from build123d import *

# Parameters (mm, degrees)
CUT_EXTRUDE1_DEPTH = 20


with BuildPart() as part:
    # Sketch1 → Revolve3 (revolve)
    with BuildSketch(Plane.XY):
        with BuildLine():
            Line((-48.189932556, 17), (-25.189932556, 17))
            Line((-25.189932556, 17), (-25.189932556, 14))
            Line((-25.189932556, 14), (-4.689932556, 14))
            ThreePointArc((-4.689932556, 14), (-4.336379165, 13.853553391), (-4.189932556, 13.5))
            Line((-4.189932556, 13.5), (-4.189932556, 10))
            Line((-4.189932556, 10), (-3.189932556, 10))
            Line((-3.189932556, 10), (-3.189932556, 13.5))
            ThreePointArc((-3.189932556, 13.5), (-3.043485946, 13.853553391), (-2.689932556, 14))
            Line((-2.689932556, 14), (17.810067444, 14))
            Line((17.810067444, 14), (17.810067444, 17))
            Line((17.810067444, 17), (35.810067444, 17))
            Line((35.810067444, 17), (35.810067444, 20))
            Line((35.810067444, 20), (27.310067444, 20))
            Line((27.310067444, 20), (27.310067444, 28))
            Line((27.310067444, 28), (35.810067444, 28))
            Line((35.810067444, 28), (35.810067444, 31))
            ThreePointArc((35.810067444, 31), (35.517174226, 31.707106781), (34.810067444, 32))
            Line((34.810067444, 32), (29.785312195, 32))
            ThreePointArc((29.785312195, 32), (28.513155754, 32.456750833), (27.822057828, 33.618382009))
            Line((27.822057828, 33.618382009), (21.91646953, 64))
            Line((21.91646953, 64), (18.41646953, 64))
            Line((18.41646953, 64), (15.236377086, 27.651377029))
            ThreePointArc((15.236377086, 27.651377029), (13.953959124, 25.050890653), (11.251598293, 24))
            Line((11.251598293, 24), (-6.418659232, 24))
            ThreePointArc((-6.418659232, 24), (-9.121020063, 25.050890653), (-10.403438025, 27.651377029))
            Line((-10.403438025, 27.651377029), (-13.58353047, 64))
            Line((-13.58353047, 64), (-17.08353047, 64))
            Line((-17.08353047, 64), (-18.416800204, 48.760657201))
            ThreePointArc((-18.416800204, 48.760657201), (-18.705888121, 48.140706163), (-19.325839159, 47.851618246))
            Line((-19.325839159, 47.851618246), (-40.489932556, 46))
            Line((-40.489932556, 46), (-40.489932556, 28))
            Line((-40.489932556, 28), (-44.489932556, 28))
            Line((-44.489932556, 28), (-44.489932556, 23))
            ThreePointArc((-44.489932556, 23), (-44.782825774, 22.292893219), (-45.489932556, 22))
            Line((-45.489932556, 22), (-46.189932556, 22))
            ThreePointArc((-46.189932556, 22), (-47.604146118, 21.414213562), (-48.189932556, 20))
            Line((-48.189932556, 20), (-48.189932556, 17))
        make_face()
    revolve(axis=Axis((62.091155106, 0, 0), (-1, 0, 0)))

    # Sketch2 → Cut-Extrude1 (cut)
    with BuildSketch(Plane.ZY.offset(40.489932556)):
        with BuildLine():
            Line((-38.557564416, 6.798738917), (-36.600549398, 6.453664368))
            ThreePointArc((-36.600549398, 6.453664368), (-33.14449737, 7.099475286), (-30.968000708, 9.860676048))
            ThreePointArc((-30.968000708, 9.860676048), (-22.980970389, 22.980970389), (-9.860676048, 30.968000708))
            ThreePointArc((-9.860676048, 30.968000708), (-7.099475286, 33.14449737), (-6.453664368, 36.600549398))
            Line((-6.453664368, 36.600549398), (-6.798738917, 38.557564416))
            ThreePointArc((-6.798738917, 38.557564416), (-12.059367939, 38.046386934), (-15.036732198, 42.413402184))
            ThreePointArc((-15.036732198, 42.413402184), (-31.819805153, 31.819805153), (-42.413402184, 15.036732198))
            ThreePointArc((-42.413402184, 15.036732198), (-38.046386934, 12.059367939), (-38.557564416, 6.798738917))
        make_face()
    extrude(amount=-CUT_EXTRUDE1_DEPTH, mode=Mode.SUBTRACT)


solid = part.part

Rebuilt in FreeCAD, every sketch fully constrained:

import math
import FreeCAD as App
import Part
import Sketcher

V = App.Vector
Q = App.Units.Quantity

doc = App.newDocument("Part")
body = doc.addObject("PartDesign::Body", "Body")

# Sketch on XY plane
sketch1 = body.newObject("Sketcher::SketchObject", "Sketch")
sketch1.AttachmentSupport = (doc.getObject("XY_Plane"), [""])
sketch1.MapMode = "FlatFace"
sketch1.addGeometry([
    Part.LineSegment(V(-48.19, 17, 0), V(-25.19, 17, 0)),  # 0
    Part.LineSegment(V(-25.19, 17, 0), V(-25.19, 14, 0)),  # 1
    Part.LineSegment(V(-25.19, 14, 0), V(-4.69, 14, 0)),  # 2
    Part.ArcOfCircle(Part.Circle(V(-4.69, 13.5, 0), V(0, 0, 1), 0.5), math.radians(0), math.radians(90)),  # 3
    Part.LineSegment(V(-4.19, 13.5, 0), V(-4.19, 10, 0)),  # 4
    Part.LineSegment(V(-4.19, 10, 0), V(-3.19, 10, 0)),  # 5
    Part.LineSegment(V(-3.19, 10, 0), V(-3.19, 13.5, 0)),  # 6
    Part.ArcOfCircle(Part.Circle(V(-2.69, 13.5, 0), V(0, 0, 1), 0.5), math.radians(90), math.radians(180)),  # 7
    Part.LineSegment(V(-2.69, 14, 0), V(17.81, 14, 0)),  # 8
    Part.LineSegment(V(17.81, 14, 0), V(17.81, 17, 0)),  # 9
    Part.LineSegment(V(17.81, 17, 0), V(35.81, 17, 0)),  # 10
    Part.LineSegment(V(35.81, 17, 0), V(35.81, 20, 0)),  # 11
    Part.LineSegment(V(35.81, 20, 0), V(27.31, 20, 0)),  # 12
    Part.LineSegment(V(27.31, 20, 0), V(27.31, 28, 0)),  # 13
    Part.LineSegment(V(27.31, 28, 0), V(35.81, 28, 0)),  # 14
    Part.LineSegment(V(35.81, 28, 0), V(35.81, 31, 0)),  # 15
    Part.ArcOfCircle(Part.Circle(V(34.81, 31, 0), V(0, 0, 1), 1), math.radians(0), math.radians(90)),  # 16
    Part.LineSegment(V(34.81, 32, 0), V(29.79, 32, 0)),  # 17
    Part.ArcOfCircle(Part.Circle(V(29.79, 34, 0), V(0, 0, 1), 2), math.radians(-169), math.radians(-90)),  # 18
    Part.LineSegment(V(27.82, 33.62, 0), V(21.92, 64, 0)),  # 19
    Part.LineSegment(V(21.92, 64, 0), V(18.42, 64, 0)),  # 20
    Part.LineSegment(V(18.42, 64, 0), V(15.24, 27.65, 0)),  # 21
    Part.ArcOfCircle(Part.Circle(V(11.25, 28, 0), V(0, 0, 1), 4), math.radians(-90), math.radians(-5)),  # 22
    Part.LineSegment(V(11.25, 24, 0), V(-6.42, 24, 0)),  # 23
    Part.ArcOfCircle(Part.Circle(V(-6.42, 28, 0), V(0, 0, 1), 4), math.radians(-175), math.radians(-90)),  # 24
    Part.LineSegment(V(-10.4, 27.65, 0), V(-13.58, 64, 0)),  # 25
    Part.LineSegment(V(-13.58, 64, 0), V(-17.08, 64, 0)),  # 26
    Part.LineSegment(V(-17.08, 64, 0), V(-18.42, 48.76, 0)),  # 27
    Part.ArcOfCircle(Part.Circle(V(-19.41, 48.85, 0), V(0, 0, 1), 1), math.radians(-85), math.radians(-5)),  # 28
    Part.LineSegment(V(-19.33, 47.85, 0), V(-40.49, 46, 0)),  # 29
    Part.LineSegment(V(-40.49, 46, 0), V(-40.49, 28, 0)),  # 30
    Part.LineSegment(V(-40.49, 28, 0), V(-44.49, 28, 0)),  # 31
    Part.LineSegment(V(-44.49, 28, 0), V(-44.49, 23, 0)),  # 32
    Part.ArcOfCircle(Part.Circle(V(-45.49, 23, 0), V(0, 0, 1), 1), math.radians(-90), math.radians(0)),  # 33
    Part.LineSegment(V(-45.49, 22, 0), V(-46.19, 22, 0)),  # 34
    Part.ArcOfCircle(Part.Circle(V(-46.19, 20, 0), V(0, 0, 1), 2), math.radians(90), math.radians(180)),  # 35
    Part.LineSegment(V(-48.19, 20, 0), V(-48.19, 17, 0)),  # 36
], False)
sketch1.addConstraint([
    Sketcher.Constraint("Coincident", 0, 2, 1, 1),
    Sketcher.Constraint("Coincident", 1, 2, 2, 1),
    Sketcher.Constraint("Tangent", 2, 2, 3, 2),
    Sketcher.Constraint("Tangent", 3, 1, 4, 1),
    Sketcher.Constraint("Coincident", 4, 2, 5, 1),
    Sketcher.Constraint("Coincident", 5, 2, 6, 1),
    Sketcher.Constraint("Tangent", 6, 2, 7, 2),
    Sketcher.Constraint("Tangent", 7, 1, 8, 1),
    Sketcher.Constraint("Coincident", 8, 2, 9, 1),
    Sketcher.Constraint("Coincident", 9, 2, 10, 1),
    Sketcher.Constraint("Coincident", 10, 2, 11, 1),
    Sketcher.Constraint("Coincident", 11, 2, 12, 1),
    Sketcher.Constraint("Coincident", 12, 2, 13, 1),
    Sketcher.Constraint("Coincident", 13, 2, 14, 1),
    Sketcher.Constraint("Coincident", 14, 2, 15, 1),
    Sketcher.Constraint("Tangent", 15, 2, 16, 1),
    Sketcher.Constraint("Tangent", 16, 2, 17, 1),
    Sketcher.Constraint("Tangent", 17, 2, 18, 2),
    Sketcher.Constraint("Tangent", 18, 1, 19, 1),
    Sketcher.Constraint("Coincident", 19, 2, 20, 1),
    Sketcher.Constraint("Coincident", 20, 2, 21, 1),
    Sketcher.Constraint("Tangent", 21, 2, 22, 2),
    Sketcher.Constraint("Tangent", 22, 1, 23, 1),
    Sketcher.Constraint("Tangent", 23, 2, 24, 2),
    Sketcher.Constraint("Tangent", 24, 1, 25, 1),
    Sketcher.Constraint("Coincident", 25, 2, 26, 1),
    Sketcher.Constraint("Coincident", 26, 2, 27, 1),
    Sketcher.Constraint("Tangent", 27, 2, 28, 2),
    Sketcher.Constraint("Tangent", 28, 1, 29, 1),
    Sketcher.Constraint("Coincident", 29, 2, 30, 1),
    Sketcher.Constraint("Coincident", 30, 2, 31, 1),
    Sketcher.Constraint("Coincident", 31, 2, 32, 1),
    Sketcher.Constraint("Tangent", 32, 2, 33, 2),
    Sketcher.Constraint("Tangent", 33, 1, 34, 1),
    Sketcher.Constraint("Tangent", 34, 2, 35, 1),
    Sketcher.Constraint("Tangent", 35, 2, 36, 1),
    Sketcher.Constraint("Coincident", 36, 2, 0, 1),
    Sketcher.Constraint("Horizontal", 0),
    Sketcher.Constraint("Vertical", 1),
    Sketcher.Constraint("Horizontal", 2),
    Sketcher.Constraint("Vertical", 4),
    Sketcher.Constraint("Horizontal", 5),
    Sketcher.Constraint("Vertical", 6),
    Sketcher.Constraint("Horizontal", 8),
    Sketcher.Constraint("Vertical", 9),
    Sketcher.Constraint("Horizontal", 10),
    Sketcher.Constraint("Vertical", 11),
    Sketcher.Constraint("Horizontal", 12),
    Sketcher.Constraint("Vertical", 13),
    Sketcher.Constraint("Horizontal", 14),
    Sketcher.Constraint("Vertical", 15),
    Sketcher.Constraint("Horizontal", 17),
    Sketcher.Constraint("Horizontal", 20),
    Sketcher.Constraint("Horizontal", 23),
    Sketcher.Constraint("Horizontal", 26),
    Sketcher.Constraint("Vertical", 30),
    Sketcher.Constraint("Horizontal", 31),
    Sketcher.Constraint("Vertical", 32),
    Sketcher.Constraint("Horizontal", 34),
    Sketcher.Constraint("Vertical", 36),
    Sketcher.Constraint("Equal", 3, 7),
    Sketcher.Constraint("Equal", 22, 24),
    Sketcher.Constraint("Equal", 16, 28),
    Sketcher.Constraint("Equal", 28, 33),
    Sketcher.Constraint("Equal", 18, 35),
    Sketcher.Constraint("Parallel", 21, 27),
    Sketcher.Constraint("Perpendicular", 25, 29),
    Sketcher.Constraint("Horizontal", 3, 3, 7, 3),
    Sketcher.Constraint("Horizontal", 0, 2, 9, 2),
    Sketcher.Constraint("Horizontal", 35, 3, 11, 2),
    Sketcher.Constraint("Horizontal", 24, 3, 13, 2),
    Sketcher.Constraint("Horizontal", 21, 2, 24, 1),
    Sketcher.Constraint("Horizontal", 20, 2, 25, 2),
    Sketcher.Constraint("Horizontal", 14, 2, 30, 2),
    Sketcher.Constraint("Vertical", 11, 2, 14, 2),
    Sketcher.Constraint("Equal", 2, 8),
    Sketcher.Constraint("Equal", 20, 26),
    Sketcher.Constraint("Equal", 26, 4),
    Sketcher.Constraint("Equal", 9, 11),
    Sketcher.Constraint("Equal", 11, 15),
    Sketcher.Constraint("Equal", 10, 30),
    Sketcher.Constraint("Radius", 16, 1.0),
    Sketcher.Constraint("Radius", 18, 2.0),
    Sketcher.Constraint("Radius", 22, 4.0),
    Sketcher.Constraint("Radius", 3, 0.5),
    Sketcher.Constraint("DistanceX", 0, 1, 0, 2, 23.0),
    Sketcher.Constraint("DistanceX", 5, 1, 5, 2, 1.0),
    Sketcher.Constraint("DistanceX", 10, 1, 10, 2, 18.0),
    Sketcher.Constraint("DistanceX", 31, 2, 31, 1, 4.0),
    Sketcher.Constraint("DistanceY", 1, 2, 1, 1, 3.0),
    Sketcher.Constraint("DistanceY", 13, 1, 13, 2, 8.0),
    Sketcher.Constraint("Angle", 19, Q("101 deg")),
    Sketcher.Constraint("Angle", 21, Q("-95 deg")),
    Sketcher.Constraint("DistanceX", 2, 1, 2, 2, 20.5),
    Sketcher.Constraint("DistanceX", 12, 2, 12, 1, 8.5),
    Sketcher.Constraint("DistanceX", 20, 2, 20, 1, 3.5),
    Sketcher.Constraint("DistanceX", 34, 2, 34, 1, 0.7),
    Sketcher.Constraint("DistanceY", -1, 1, 16, 3, 31.0),
    Sketcher.Constraint("DistanceY", -1, 1, 19, 2, 64.0),
    Sketcher.Constraint("DistanceX", 25, 2, 20, 2, 32.0),
    Sketcher.Constraint("DistanceX", -1, 1, 22, 3, 11.251598),
    Sketcher.Constraint("DistanceX", 17, 2, 17, 1, 5.024755),
])
revolution = body.newObject("PartDesign::Revolution", "Revolution")
revolution.Profile = sketch1
revolution.ReferenceAxis = (sketch1, ["H_Axis"])
revolution.Angle = 360

# Sketch on YZ plane
sketch2 = body.newObject("Sketcher::SketchObject", "Sketch001")
sketch2.AttachmentSupport = (doc.getObject("YZ_Plane"), [""])
sketch2.MapMode = "FlatFace"
sketch2.AttachmentOffset = App.Placement(V(0, 0, -40.489933), App.Rotation())
sketch2.addGeometry([
    Part.LineSegment(V(6.8, -38.6, 0), V(6.5, -36.6, 0)),  # 0
    Part.ArcOfCircle(Part.Circle(V(11.4, -35.7, 0), V(0, 0, 1), 5), math.radians(108), math.radians(190)),  # 1
    Part.ArcOfCircle(Part.Circle(V(0, 0, 0), V(0, 0, 1), 32.5), math.radians(-72), math.radians(-18)),  # 2
    Part.ArcOfCircle(Part.Circle(V(35.7, -11.4, 0), V(0, 0, 1), 5), math.radians(80), math.radians(162)),  # 3
    Part.LineSegment(V(36.6, -6.5, 0), V(38.6, -6.8, 0)),  # 4
    Part.ArcOfCircle(Part.Circle(V(42.7, -9.9, 0), V(0, 0, 1), 5.2), math.radians(144), math.radians(266)),  # 5
    Part.ArcOfCircle(Part.Circle(V(0, 0, 0), V(0, 0, 1), 45), math.radians(-70), math.radians(-20)),  # 6
    Part.ArcOfCircle(Part.Circle(V(9.9, -42.7, 0), V(0, 0, 1), 5.2), math.radians(4), math.radians(126)),  # 7
], False)
sketch2.addConstraint([
    Sketcher.Constraint("Tangent", 0, 2, 1, 2),
    Sketcher.Constraint("Tangent", 1, 1, 2, 1),
    Sketcher.Constraint("Tangent", 2, 2, 3, 2),
    Sketcher.Constraint("Tangent", 3, 1, 4, 1),
    Sketcher.Constraint("Coincident", 4, 2, 5, 1),
    Sketcher.Constraint("Coincident", 5, 2, 6, 2),
    Sketcher.Constraint("Coincident", 6, 1, 7, 1),
    Sketcher.Constraint("Coincident", 7, 2, 0, 1),
    Sketcher.Constraint("Coincident", 2, 3, -1, 1),
    Sketcher.Constraint("Coincident", 6, 3, -1, 1),
    Sketcher.Constraint("Equal", 1, 3),
    Sketcher.Constraint("Equal", 5, 7),
    Sketcher.Constraint("Horizontal", 5, 3, 2, 2),
    Sketcher.Constraint("Vertical", 7, 3, 1, 1),
    Sketcher.Constraint("Equal", 0, 4),
    Sketcher.Constraint("Radius", 1, 5.0),
    Sketcher.Constraint("Radius", 6, 45.0),
    Sketcher.Constraint("Radius", 2, 32.5),
    Sketcher.Constraint("Angle", 0, Q("100 deg")),
    Sketcher.Constraint("Angle", 4, Q("-10 deg")),
    Sketcher.Constraint("DistanceY", 1, 1, -1, 1, 30.968001),
    Sketcher.Constraint("DistanceX", -1, 1, 2, 2, 30.968001),
    Sketcher.Constraint("Radius", 5, 5.186596),
    Sketcher.Constraint("DistanceX", -1, 1, 5, 3, 42.74389),
])
pocket1 = body.newObject("PartDesign::Pocket", "Pocket")
pocket1.Profile = sketch2
pocket1.Length = 20
pocket1.Reversed = True

doc.recompute()
